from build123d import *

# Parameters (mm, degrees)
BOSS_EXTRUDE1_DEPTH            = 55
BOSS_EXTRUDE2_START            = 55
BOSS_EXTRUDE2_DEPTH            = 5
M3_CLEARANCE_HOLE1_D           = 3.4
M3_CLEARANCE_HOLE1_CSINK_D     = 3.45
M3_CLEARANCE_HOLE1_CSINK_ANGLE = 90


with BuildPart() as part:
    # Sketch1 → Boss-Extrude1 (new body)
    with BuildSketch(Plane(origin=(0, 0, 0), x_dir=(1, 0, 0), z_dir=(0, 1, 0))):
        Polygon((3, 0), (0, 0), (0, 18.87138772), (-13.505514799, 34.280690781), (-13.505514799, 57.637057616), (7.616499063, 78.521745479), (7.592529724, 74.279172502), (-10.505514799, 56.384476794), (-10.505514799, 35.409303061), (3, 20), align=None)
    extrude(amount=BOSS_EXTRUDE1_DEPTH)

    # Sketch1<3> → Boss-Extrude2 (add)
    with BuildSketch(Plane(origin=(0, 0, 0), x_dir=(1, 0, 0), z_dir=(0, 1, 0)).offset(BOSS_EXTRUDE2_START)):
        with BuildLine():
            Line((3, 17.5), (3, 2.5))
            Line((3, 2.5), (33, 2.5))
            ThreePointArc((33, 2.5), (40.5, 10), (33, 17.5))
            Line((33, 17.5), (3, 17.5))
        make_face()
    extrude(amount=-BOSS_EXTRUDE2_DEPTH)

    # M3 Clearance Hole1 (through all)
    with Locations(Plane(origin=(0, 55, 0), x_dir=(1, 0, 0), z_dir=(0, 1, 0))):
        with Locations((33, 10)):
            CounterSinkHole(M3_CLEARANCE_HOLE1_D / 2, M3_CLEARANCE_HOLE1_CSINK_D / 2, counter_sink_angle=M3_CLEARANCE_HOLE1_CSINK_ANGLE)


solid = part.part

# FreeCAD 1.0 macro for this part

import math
import FreeCAD as App
import Part
import Sketcher
from FreeCAD import Vector
Q = App.Units.Quantity

doc = App.newDocument("Part")
body = doc.addObject("PartDesign::Body", "Body")

sketch1 = body.newObject("Sketcher::SketchObject", "Sketch")
sketch1.AttachmentSupport = (doc.getObject("XZ_Plane"), [""])
sketch1.MapMode = "FlatFace"
sketch1.addGeometry(Part.LineSegment(Vector(0, 0, 0), Vector(3, 0, 0)), False)
sketch1.addGeometry(Part.LineSegment(Vector(3, 0, 0), Vector(3, -20, 0)), False)
sketch1.addGeometry(Part.LineSegment(Vector(3, -20, 0), Vector(-10.5, -35.4, 0)), False)
sketch1.addGeometry(Part.LineSegment(Vector(-10.5, -35.4, 0), Vector(-10.5, -56.4, 0)), False)
sketch1.addGeometry(Part.LineSegment(Vector(-10.5, -56.4, 0), Vector(7.6, -74.3, 0)), False)
sketch1.addGeometry(Part.LineSegment(Vector(7.6, -74.3, 0), Vector(7.6, -78.5, 0)), False)
sketch1.addGeometry(Part.LineSegment(Vector(7.6, -78.5, 0), Vector(-13.5, -57.6, 0)), False)
sketch1.addGeometry(Part.LineSegment(Vector(-13.5, -57.6, 0), Vector(-13.5, -34.3, 0)), False)
sketch1.addGeometry(Part.LineSegment(Vector(-13.5, -34.3, 0), Vector(0, -18.9, 0)), False)
sketch1.addGeometry(Part.LineSegment(Vector(0, -18.9, 0), Vector(0, 0, 0)), False)
sketch1.addConstraint(Sketcher.Constraint("Coincident", 0, 2, 1, 1))
sketch1.addConstraint(Sketcher.Constraint("Coincident", 1, 2, 2, 1))
sketch1.addConstraint(Sketcher.Constraint("Coincident", 2, 2, 3, 1))
sketch1.addConstraint(Sketcher.Constraint("Coincident", 3, 2, 4, 1))
sketch1.addConstraint(Sketcher.Constraint("Coincident", 4, 2, 5, 1))
sketch1.addConstraint(Sketcher.Constraint("Coincident", 5, 2, 6, 1))
sketch1.addConstraint(Sketcher.Constraint("Coincident", 6, 2, 7, 1))
sketch1.addConstraint(Sketcher.Constraint("Coincident", 7, 2, 8, 1))
sketch1.addConstraint(Sketcher.Constraint("Coincident", 8, 2, 9, 1))
sketch1.addConstraint(Sketcher.Constraint("Coincident", 9, 2, 0, 1))
sketch1.addConstraint(Sketcher.Constraint("Horizontal", 0))
sketch1.addConstraint(Sketcher.Constraint("Vertical", 1))
sketch1.addConstraint(Sketcher.Constraint("Vertical", 3))
sketch1.addConstraint(Sketcher.Constraint("Vertical", 7))
sketch1.addConstraint(Sketcher.Constraint("Vertical", 9))
sketch1.addConstraint(Sketcher.Constraint("Coincident", 9, 2, -1, 1))
sketch1.addConstraint(Sketcher.Constraint("Parallel", 4, 6))
sketch1.addConstraint(Sketcher.Constraint("Parallel", 2, 8))
sketch1.addConstraint(Sketcher.Constraint("Equal", 2, 8))
sketch1.addConstraint(Sketcher.Constraint("DistanceX", 0, 1, 0, 2, Q("3 mm")))
sketch1.addConstraint(Sketcher.Constraint("DistanceY", 1, 2, 1, 1, Q("20 mm")))
sketch1.addConstraint(Sketcher.Constraint("DistanceX", -1, 1, 5, 2, Q("7.616499 mm")))
sketch1.addConstraint(Sketcher.Constraint("Distance", 5, Q("4.242641 mm")))
sketch1.addConstraint(Sketcher.Constraint("DistanceY", 3, 2, 3, 1, Q("20.975174 mm")))
sketch1.addConstraint(Sketcher.Constraint("DistanceY", 7, 1, 7, 2, Q("23.356367 mm")))
sketch1.addConstraint(Sketcher.Constraint("DistanceY", 9, 1, 9, 2, Q("18.871388 mm")))
sketch1.addConstraint(Sketcher.Constraint("DistanceX", -1, 1, 4, 2, Q("7.59253 mm")))
sketch1.addConstraint(Sketcher.Constraint("DistanceY", 7, 2, -1, 1, Q("34.280691 mm")))
sketch1.addConstraint(Sketcher.Constraint("DistanceY", 4, 2, 2, 2, Q("38.869869 mm")))
pad1 = body.newObject("PartDesign::Pad", "Pad")
pad1.Profile = sketch1
pad1.Length = 55
pad1.Reversed = True

sketch2 = body.newObject("Sketcher::SketchObject", "Sketch001")
sketch2.AttachmentSupport = (doc.getObject("XZ_Plane"), [""])
sketch2.MapMode = "FlatFace"
sketch2.AttachmentOffset = App.Placement(Vector(0, 0, -55), App.Rotation())
sketch2.addGeometry(Part.LineSegment(Vector(3, -18, 0), Vector(3, -2, 0)), False)
sketch2.addGeometry(Part.LineSegment(Vector(3, -2, 0), Vector(33, -2, 0)), False)
sketch2.addGeometry(Part.ArcOfCircle(Part.Circle(Vector(33, -10, 0), Vector(0, 0, 1), 8), math.radians(-90), math.radians(90)), False)
sketch2.addGeometry(Part.LineSegment(Vector(33, -18, 0), Vector(3, -18, 0)), False)
sketch2.addConstraint(Sketcher.Constraint("Coincident", 0, 2, 1, 1))
sketch2.addConstraint(Sketcher.Constraint("Tangent", 1, 2, 2, 2))
sketch2.addConstraint(Sketcher.Constraint("Tangent", 2, 1, 3, 1))
sketch2.addConstraint(Sketcher.Constraint("Coincident", 3, 2, 0, 1))
sketch2.addConstraint(Sketcher.Constraint("Vertical", 0))
sketch2.addConstraint(Sketcher.Constraint("Horizontal", 1))
sketch2.addConstraint(Sketcher.Constraint("Horizontal", 3))
sketch2.addConstraint(Sketcher.Constraint("Radius", 2, Q("7.5 mm")))
sketch2.addConstraint(Sketcher.Constraint("DistanceX", 1, 1, 1, 2, Q("30 mm")))
sketch2.addConstraint(Sketcher.Constraint("DistanceX", -1, 1, 2, 3, Q("33 mm")))
sketch2.addConstraint(Sketcher.Constraint("DistanceY", 2, 3, -1, 1, Q("10 mm")))
pad2 = body.newObject("PartDesign::Pad", "Pad001")
pad2.Profile = sketch2
pad2.Length = 5

sketch3 = body.newObject("Sketcher::SketchObject", "Sketch002")
sketch3.AttachmentSupport = (doc.getObject("XZ_Plane"), [""])
sketch3.MapMode = "FlatFace"
sketch3.AttachmentOffset = App.Placement(Vector(0, 0, -55), App.Rotation())
sketch3.addGeometry(Part.Circle(Vector(33, -10, 0), Vector(0, 0, 1), 1.7), False)
sketch3.addConstraint(Sketcher.Constraint("Diameter", 0, Q("3.4 mm")))
sketch3.addConstraint(Sketcher.Constraint("DistanceX", -1, 1, 0, 3, Q("33 mm")))
sketch3.addConstraint(Sketcher.Constraint("DistanceY", 0, 3, -1, 1, Q("10 mm")))
doc.recompute()
hole = body.newObject("PartDesign::Hole", "Hole")
hole.Profile = sketch3
hole.ThreadType = "None"
hole.Diameter = 3.4
hole.DepthType = "ThroughAll"
hole.HoleCutType = "Countersink"
hole.HoleCutDiameter = 3.45
hole.HoleCutCountersinkAngle = 90
hole.Reversed = True

doc.recompute()
